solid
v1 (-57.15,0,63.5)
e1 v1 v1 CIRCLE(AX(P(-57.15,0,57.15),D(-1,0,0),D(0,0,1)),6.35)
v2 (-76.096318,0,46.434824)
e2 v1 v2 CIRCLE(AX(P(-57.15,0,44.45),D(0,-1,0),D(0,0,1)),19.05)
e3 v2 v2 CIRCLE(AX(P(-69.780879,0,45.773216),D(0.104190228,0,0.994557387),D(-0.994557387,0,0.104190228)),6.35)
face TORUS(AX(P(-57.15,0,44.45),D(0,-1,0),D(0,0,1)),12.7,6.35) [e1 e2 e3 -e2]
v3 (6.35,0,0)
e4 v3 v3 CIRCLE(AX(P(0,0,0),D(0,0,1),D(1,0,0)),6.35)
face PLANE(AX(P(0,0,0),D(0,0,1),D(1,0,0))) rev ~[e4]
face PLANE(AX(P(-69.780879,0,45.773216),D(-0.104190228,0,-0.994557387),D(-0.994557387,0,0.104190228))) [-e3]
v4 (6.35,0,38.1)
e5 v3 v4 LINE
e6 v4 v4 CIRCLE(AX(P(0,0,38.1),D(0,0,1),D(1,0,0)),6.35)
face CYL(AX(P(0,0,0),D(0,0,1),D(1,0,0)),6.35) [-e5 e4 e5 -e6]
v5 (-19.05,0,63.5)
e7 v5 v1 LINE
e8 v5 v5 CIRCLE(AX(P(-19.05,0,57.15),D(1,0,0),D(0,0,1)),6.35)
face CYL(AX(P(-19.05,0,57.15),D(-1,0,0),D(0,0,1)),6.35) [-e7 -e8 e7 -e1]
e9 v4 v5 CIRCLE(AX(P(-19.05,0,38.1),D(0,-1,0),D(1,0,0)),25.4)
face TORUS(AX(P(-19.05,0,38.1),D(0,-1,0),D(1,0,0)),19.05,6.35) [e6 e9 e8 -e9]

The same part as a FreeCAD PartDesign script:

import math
import FreeCAD as App
import Part
import Sketcher

V = App.Vector
Q = App.Units.Quantity

doc = App.newDocument("Part")
body = doc.addObject("PartDesign::Body", "Body")

sketch1 = body.newObject("Sketcher::SketchObject", "Sketch")
sketch1.AttachmentSupport = (doc.getObject("XY_Plane"), [""])
sketch1.MapMode = "FlatFace"
sketch1.addGeometry(Part.Circle(V(0, 0, 0), V(0, 0, 1), 6.35), False)
sketch1.addConstraint(Sketcher.Constraint("Coincident", 0, 3, -1, 1))
sketch1.addConstraint(Sketcher.Constraint("Diameter", 0, Q("0.5 in")))

sketch2 = body.newObject("Sketcher::SketchObject", "Sketch001")
sketch2.AttachmentSupport = (doc.getObject("XZ_Plane"), [""])
sketch2.MapMode = "FlatFace"
sketch2.addGeometry(Part.LineSegment(V(0, 0, 0), V(0, 38.1, 0)), False)
sketch2.addGeometry(Part.ArcOfCircle(Part.Circle(V(-19.05, 38.1, 0), V(0, 0, 1), 19.05), math.radians(0), math.radians(90)), False)
sketch2.addGeometry(Part.LineSegment(V(-19.05, 57.15, 0), V(-57.15, 57.15, 0)), False)
sketch2.addGeometry(Part.ArcOfCircle(Part.Circle(V(-57.15, 44.45, 0), V(0, 0, 1), 12.7), math.radians(90), math.radians(174.019486)), False)
sketch2.addConstraint(Sketcher.Constraint("Tangent", 0, 2, 1, 1))
sketch2.addConstraint(Sketcher.Constraint("Tangent", 1, 2, 2, 1))
sketch2.addConstraint(Sketcher.Constraint("Tangent", 2, 2, 3, 1))
sketch2.addConstraint(Sketcher.Constraint("Vertical", 0))
sketch2.addConstraint(Sketcher.Constraint("Horizontal", 2))
sketch2.addConstraint(Sketcher.Constraint("Coincident", 0, 1, -1, 1))
sketch2.addConstraint(Sketcher.Constraint("Equal", 2, 0))
sketch2.addConstraint(Sketcher.Constraint("Radius", 3, Q("0.5 in")))
sketch2.addConstraint(Sketcher.Constraint("Radius", 1, Q("0.75 in")))
sketch2.addConstraint(Sketcher.Constraint("DistanceX", 2, 2, 2, 1, Q("1.5 in")))
sketch2.addConstraint(Sketcher.Constraint("DistanceX", 3, 2, -1, 1, Q("69.780879 mm")))
doc.recompute()

additivepipe = body.newObject("PartDesign::AdditivePipe", "AdditivePipe")
additivepipe.Profile = sketch1
additivepipe.Spine = (sketch2, ["Edge1", "Edge2", "Edge3", "Edge4"])

doc.recompute()
